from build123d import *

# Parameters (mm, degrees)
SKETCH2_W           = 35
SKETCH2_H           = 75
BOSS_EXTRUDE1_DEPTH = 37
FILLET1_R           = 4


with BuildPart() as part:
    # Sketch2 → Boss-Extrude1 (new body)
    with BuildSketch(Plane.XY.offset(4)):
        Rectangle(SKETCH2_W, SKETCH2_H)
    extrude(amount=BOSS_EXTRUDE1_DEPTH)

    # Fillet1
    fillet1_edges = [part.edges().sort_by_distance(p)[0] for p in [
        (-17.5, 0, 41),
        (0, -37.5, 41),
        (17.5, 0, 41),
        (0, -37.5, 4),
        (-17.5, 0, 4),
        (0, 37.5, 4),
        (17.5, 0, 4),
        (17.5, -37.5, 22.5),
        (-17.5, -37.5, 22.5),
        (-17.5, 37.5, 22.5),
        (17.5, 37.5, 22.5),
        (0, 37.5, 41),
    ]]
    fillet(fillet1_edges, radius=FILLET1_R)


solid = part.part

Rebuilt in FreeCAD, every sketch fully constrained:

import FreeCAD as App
import Part
import Sketcher

V = App.Vector
Q = App.Units.Quantity

doc = App.newDocument("Part")
body = doc.addObject("PartDesign::Body", "Body")

# Sketch on XY plane
sketch1 = body.newObject("Sketcher::SketchObject", "Sketch")
sketch1.AttachmentSupport = (doc.getObject("XY_Plane"), [""])
sketch1.MapMode = "FlatFace"
sketch1.AttachmentOffset = App.Placement(V(0, 0, 4), App.Rotation())
sketch1.addGeometry([
    Part.LineSegment(V(-18, 38, 0), V(-18, -38, 0)),
    Part.LineSegment(V(-18, -38, 0), V(18, -38, 0)),
    Part.LineSegment(V(18, -38, 0), V(18, 38, 0)),
    Part.LineSegment(V(18, 38, 0), V(-18, 38, 0)),
], False)
sketch1.addConstraint([
    Sketcher.Constraint("Coincident", 0, 2, 1, 1),
    Sketcher.Constraint("Coincident", 1, 2, 2, 1),
    Sketcher.Constraint("Coincident", 2, 2, 3, 1),
    Sketcher.Constraint("Coincident", 3, 2, 0, 1),
    Sketcher.Constraint("Vertical", 0),
    Sketcher.Constraint("Horizontal", 1),
    Sketcher.Constraint("Vertical", 2),
    Sketcher.Constraint("Horizontal", 3),
    Sketcher.Constraint("Symmetric", 0, 2, 2, 2, -1, 1),
    Sketcher.Constraint("DistanceX", 1, 1, 1, 2, Q("35 mm")),
    Sketcher.Constraint("DistanceY", 0, 2, 0, 1, Q("75 mm")),
])
pad1 = body.newObject("PartDesign::Pad", "Pad")
pad1.Profile = sketch1
pad1.Length = 37
doc.recompute()

fillet = body.newObject("PartDesign::Fillet", "Fillet")
fillet.Base = (pad1, ["Edge1"])
fillet.UseAllEdges = True
fillet.Radius = 4

doc.recompute()
